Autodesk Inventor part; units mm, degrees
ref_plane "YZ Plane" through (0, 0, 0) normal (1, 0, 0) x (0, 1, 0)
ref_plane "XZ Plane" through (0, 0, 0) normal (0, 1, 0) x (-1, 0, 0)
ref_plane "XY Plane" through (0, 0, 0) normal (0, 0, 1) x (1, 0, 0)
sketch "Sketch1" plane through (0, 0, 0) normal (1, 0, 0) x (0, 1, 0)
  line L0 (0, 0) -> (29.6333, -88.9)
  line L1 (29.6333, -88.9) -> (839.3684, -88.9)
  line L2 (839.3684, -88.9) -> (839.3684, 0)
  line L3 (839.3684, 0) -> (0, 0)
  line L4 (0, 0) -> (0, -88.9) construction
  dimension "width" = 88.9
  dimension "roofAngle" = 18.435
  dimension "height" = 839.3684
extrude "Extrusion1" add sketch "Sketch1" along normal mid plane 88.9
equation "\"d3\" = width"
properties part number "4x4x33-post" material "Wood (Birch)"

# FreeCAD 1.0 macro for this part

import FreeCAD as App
import Part
import Sketcher
from FreeCAD import Vector
Q = App.Units.Quantity

doc = App.newDocument("Part")
body = doc.addObject("PartDesign::Body", "Body")

# Sketch on YZ plane
sketch1 = body.newObject("Sketcher::SketchObject", "Sketch")
sketch1.AttachmentSupport = (doc.getObject("YZ_Plane"), [""])
sketch1.MapMode = "FlatFace"
sketch1.addGeometry([
    Part.LineSegment(Vector(839, 0, 0), Vector(0, 0, 0)),
    Part.LineSegment(Vector(0, 0, 0), Vector(30, -89, 0)),
    Part.LineSegment(Vector(30, -89, 0), Vector(839, -89, 0)),
    Part.LineSegment(Vector(839, -89, 0), Vector(839, 0, 0)),
], False)
sketch1.addConstraint([
    Sketcher.Constraint("Coincident", 0, 2, 1, 1),
    Sketcher.Constraint("Coincident", 1, 2, 2, 1),
    Sketcher.Constraint("Coincident", 2, 2, 3, 1),
    Sketcher.Constraint("Coincident", 3, 2, 0, 1),
    Sketcher.Constraint("Horizontal", 0),
    Sketcher.Constraint("Horizontal", 2),
    Sketcher.Constraint("Vertical", 3),
    Sketcher.Constraint("Coincident", 0, 2, -1, 1),
    Sketcher.Constraint("DistanceY", 3, 1, 3, 2, Q("3.5 in")),
    Sketcher.Constraint("DistanceX", 0, 2, 0, 1, Q("33.046 in")),
    Sketcher.Constraint("DistanceX", 2, 1, 2, 2, 809.735),
])
pad1 = body.newObject("PartDesign::Pad", "Pad")
pad1.Profile = sketch1
pad1.Length = Q("3.5 in")
pad1.Midplane = True

doc.recompute()
